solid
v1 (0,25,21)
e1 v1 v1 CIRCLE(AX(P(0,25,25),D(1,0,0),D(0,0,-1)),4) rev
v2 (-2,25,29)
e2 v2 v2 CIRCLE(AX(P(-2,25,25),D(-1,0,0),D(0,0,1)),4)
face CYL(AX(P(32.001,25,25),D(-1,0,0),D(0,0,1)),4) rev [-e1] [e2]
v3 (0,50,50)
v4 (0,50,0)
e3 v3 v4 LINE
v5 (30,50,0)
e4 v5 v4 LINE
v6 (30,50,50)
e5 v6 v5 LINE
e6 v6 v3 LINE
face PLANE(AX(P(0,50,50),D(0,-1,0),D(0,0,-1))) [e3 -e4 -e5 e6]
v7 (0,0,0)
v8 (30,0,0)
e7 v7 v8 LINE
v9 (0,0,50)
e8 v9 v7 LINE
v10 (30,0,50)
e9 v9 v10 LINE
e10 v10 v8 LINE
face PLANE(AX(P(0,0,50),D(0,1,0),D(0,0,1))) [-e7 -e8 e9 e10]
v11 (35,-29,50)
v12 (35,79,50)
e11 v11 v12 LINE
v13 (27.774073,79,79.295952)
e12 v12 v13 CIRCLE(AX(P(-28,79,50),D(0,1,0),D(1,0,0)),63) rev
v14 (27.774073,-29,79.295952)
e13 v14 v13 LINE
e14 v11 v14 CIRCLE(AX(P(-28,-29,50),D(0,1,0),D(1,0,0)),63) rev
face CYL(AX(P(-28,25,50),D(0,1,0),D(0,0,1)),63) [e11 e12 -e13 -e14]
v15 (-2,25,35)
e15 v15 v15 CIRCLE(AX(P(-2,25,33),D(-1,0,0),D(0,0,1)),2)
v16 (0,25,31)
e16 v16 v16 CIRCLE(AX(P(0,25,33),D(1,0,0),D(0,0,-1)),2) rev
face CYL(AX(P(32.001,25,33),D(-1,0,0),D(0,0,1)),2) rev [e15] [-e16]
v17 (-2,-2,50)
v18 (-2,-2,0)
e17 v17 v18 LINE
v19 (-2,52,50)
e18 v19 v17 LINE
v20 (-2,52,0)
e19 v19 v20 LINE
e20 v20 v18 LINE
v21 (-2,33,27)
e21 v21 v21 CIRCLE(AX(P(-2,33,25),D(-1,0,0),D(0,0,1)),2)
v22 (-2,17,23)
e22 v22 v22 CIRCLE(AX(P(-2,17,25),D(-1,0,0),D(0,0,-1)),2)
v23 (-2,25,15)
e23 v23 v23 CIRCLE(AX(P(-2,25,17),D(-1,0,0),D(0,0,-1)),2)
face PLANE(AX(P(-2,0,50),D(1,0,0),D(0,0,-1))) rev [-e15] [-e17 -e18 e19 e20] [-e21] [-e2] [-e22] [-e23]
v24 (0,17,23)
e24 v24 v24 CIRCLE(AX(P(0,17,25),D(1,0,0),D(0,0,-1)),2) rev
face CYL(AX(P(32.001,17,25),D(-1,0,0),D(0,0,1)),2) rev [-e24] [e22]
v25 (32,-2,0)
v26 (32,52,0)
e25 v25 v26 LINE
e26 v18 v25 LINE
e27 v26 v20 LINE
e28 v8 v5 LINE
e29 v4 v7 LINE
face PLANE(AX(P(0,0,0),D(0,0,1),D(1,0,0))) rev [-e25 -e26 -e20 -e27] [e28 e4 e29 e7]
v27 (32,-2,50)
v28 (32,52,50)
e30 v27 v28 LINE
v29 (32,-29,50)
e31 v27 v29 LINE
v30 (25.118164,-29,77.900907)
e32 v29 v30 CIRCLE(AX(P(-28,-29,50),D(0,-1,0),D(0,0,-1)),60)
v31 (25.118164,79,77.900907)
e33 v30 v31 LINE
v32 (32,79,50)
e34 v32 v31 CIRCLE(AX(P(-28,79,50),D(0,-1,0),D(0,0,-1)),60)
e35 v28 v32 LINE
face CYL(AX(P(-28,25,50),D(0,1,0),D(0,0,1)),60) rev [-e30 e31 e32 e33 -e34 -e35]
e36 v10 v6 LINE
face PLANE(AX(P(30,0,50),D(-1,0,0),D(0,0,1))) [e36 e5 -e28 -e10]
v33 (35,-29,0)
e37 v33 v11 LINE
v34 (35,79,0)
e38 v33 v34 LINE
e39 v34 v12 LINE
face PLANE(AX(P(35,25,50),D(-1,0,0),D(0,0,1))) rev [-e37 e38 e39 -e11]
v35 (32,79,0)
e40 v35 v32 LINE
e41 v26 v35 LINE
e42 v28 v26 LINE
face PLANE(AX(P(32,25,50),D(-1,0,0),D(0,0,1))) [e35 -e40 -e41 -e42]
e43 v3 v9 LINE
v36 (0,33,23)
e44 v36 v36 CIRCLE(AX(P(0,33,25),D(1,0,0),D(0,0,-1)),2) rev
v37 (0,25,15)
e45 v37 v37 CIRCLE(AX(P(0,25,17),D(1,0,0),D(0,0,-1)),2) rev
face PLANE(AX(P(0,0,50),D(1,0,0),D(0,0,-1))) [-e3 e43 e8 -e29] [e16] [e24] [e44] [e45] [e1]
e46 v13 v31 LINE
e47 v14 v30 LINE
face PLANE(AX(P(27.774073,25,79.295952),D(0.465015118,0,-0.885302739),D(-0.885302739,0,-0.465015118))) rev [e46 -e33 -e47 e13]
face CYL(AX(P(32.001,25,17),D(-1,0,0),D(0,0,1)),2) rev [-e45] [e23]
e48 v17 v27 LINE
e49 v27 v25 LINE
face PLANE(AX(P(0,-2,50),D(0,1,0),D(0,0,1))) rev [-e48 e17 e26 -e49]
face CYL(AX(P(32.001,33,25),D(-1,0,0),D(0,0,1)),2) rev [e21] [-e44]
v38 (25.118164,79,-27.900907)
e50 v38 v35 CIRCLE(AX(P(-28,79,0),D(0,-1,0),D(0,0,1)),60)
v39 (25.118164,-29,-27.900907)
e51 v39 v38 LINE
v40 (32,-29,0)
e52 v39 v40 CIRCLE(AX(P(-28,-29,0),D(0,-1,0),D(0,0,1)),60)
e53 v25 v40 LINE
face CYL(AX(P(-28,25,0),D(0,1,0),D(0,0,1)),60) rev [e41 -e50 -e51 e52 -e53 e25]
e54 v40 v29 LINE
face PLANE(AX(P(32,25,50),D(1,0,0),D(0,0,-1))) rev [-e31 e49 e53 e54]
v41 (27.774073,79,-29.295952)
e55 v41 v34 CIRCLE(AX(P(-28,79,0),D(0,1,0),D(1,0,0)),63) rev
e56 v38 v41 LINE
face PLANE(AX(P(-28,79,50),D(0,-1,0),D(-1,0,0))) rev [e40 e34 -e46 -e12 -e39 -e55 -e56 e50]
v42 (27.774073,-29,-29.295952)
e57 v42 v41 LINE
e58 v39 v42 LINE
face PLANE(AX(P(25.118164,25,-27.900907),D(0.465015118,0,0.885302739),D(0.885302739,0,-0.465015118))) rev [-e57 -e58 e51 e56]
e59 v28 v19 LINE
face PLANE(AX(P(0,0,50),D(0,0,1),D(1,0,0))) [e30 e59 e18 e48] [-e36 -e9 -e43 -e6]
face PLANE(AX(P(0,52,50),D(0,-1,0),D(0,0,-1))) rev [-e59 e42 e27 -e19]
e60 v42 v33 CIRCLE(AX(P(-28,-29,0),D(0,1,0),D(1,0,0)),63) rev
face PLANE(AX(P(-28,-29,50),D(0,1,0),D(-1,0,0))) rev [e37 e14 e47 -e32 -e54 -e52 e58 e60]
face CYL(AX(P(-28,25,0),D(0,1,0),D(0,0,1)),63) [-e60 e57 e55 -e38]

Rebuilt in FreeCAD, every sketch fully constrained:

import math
import FreeCAD as App
import Part
import Sketcher
from FreeCAD import Vector
Q = App.Units.Quantity

doc = App.newDocument("Part")
body = doc.addObject("PartDesign::Body", "Body")

# Sketch on XY plane
sketch1 = doc.addObject("Sketcher::SketchObject", "Sketch")
body.addObject(sketch1)
sketch1.AttachmentSupport = (doc.XY_Plane, [""])
sketch1.MapMode = "FlatFace"
sketch1.addGeometry([
    Part.LineSegment(Vector(-2, 52, 0), Vector(-2, -2, 0)),  # 0
    Part.LineSegment(Vector(-2, -2, 0), Vector(32, -2, 0)),  # 1
    Part.LineSegment(Vector(32, -2, 0), Vector(32, 52, 0)),  # 2
    Part.LineSegment(Vector(32, 52, 0), Vector(-2, 52, 0)),  # 3
    Part.LineSegment(Vector(30, 0, 0), Vector(0, 0, 0)),  # 4
    Part.LineSegment(Vector(0, 0, 0), Vector(0, 50, 0)),  # 5
    Part.LineSegment(Vector(0, 50, 0), Vector(30, 50, 0)),  # 6
    Part.LineSegment(Vector(30, 50, 0), Vector(30, 0, 0)),  # 7
], False)
sketch1.addConstraint([
    Sketcher.Constraint("Coincident", 0, 2, 1, 1),
    Sketcher.Constraint("Coincident", 1, 2, 2, 1),
    Sketcher.Constraint("Coincident", 2, 2, 3, 1),
    Sketcher.Constraint("Coincident", 3, 2, 0, 1),
    Sketcher.Constraint("Coincident", 4, 2, 5, 1),
    Sketcher.Constraint("Coincident", 5, 2, 6, 1),
    Sketcher.Constraint("Coincident", 6, 2, 7, 1),
    Sketcher.Constraint("Coincident", 7, 2, 4, 1),
    Sketcher.Constraint("Vertical", 0),
    Sketcher.Constraint("Horizontal", 1),
    Sketcher.Constraint("Vertical", 2),
    Sketcher.Constraint("Horizontal", 3),
    Sketcher.Constraint("Horizontal", 4),
    Sketcher.Constraint("Vertical", 5),
    Sketcher.Constraint("Horizontal", 6),
    Sketcher.Constraint("Vertical", 7),
    Sketcher.Constraint("Coincident", 4, 2, -1, 1),
    Sketcher.Constraint("DistanceX", 1, 1, 1, 2, Q("34 mm")),
    Sketcher.Constraint("DistanceX", 4, 2, 4, 1, Q("30 mm")),
    Sketcher.Constraint("DistanceY", 0, 2, 0, 1, Q("54 mm")),
    Sketcher.Constraint("DistanceY", 5, 1, 5, 2, Q("50 mm")),
    Sketcher.Constraint("DistanceX", 0, 2, -1, 1, Q("2 mm")),
    Sketcher.Constraint("DistanceY", 0, 2, -1, 1, Q("2 mm")),
])
pad1 = doc.addObject("PartDesign::Pad", "Pad")
body.addObject(pad1)
pad1.Profile = sketch1
pad1.Length = 50

# Sketch on YZ plane
sketch2 = doc.addObject("Sketcher::SketchObject", "Sketch001")
body.addObject(sketch2)
sketch2.AttachmentSupport = (doc.YZ_Plane, [""])
sketch2.MapMode = "FlatFace"
sketch2.AttachmentOffset = App.Placement(Vector(0, 0, -2), App.Rotation())
sketch2.addGeometry(Part.Circle(Vector(25, 25, 0), Vector(0, 0, 1), 4), False)
sketch2.addConstraint([
    Sketcher.Constraint("Diameter", 0, Q("8 mm")),
    Sketcher.Constraint("DistanceX", -1, 1, 0, 3, Q("25 mm")),
    Sketcher.Constraint("DistanceY", -1, 1, 0, 3, Q("25 mm")),
])
pocket1 = doc.addObject("PartDesign::Pocket", "Pocket")
body.addObject(pocket1)
pocket1.Profile = sketch2
pocket1.Type = "UpToFirst"
pocket1.Reversed = True

# Sketch on YZ plane
sketch3 = doc.addObject("Sketcher::SketchObject", "Sketch002")
body.addObject(sketch3)
sketch3.AttachmentSupport = (doc.YZ_Plane, [""])
sketch3.MapMode = "FlatFace"
sketch3.AttachmentOffset = App.Placement(Vector(0, 0, -2), App.Rotation())
sketch3.addGeometry(Part.Circle(Vector(25, 33, 0), Vector(0, 0, 1), 2), False)
sketch3.addConstraint([
    Sketcher.Constraint("Diameter", 0, Q("4 mm")),
    Sketcher.Constraint("DistanceX", -1, 1, 0, 3, Q("25 mm")),
    Sketcher.Constraint("DistanceY", -1, 1, 0, 3, Q("33 mm")),
])
pocket2 = doc.addObject("PartDesign::Pocket", "Pocket001")
body.addObject(pocket2)
pocket2.Profile = sketch3
pocket2.Type = "UpToFirst"
pocket2.Reversed = True

# Sketch on YZ plane
sketch4 = doc.addObject("Sketcher::SketchObject", "Sketch003")
body.addObject(sketch4)
sketch4.AttachmentSupport = (doc.YZ_Plane, [""])
sketch4.MapMode = "FlatFace"
sketch4.AttachmentOffset = App.Placement(Vector(0, 0, -2), App.Rotation())
sketch4.addGeometry(Part.Circle(Vector(25, 17, 0), Vector(0, 0, 1), 2), False)
sketch4.addConstraint([
    Sketcher.Constraint("Diameter", 0, Q("4 mm")),
    Sketcher.Constraint("DistanceX", -1, 1, 0, 3, Q("25 mm")),
    Sketcher.Constraint("DistanceY", -1, 1, 0, 3, Q("17 mm")),
])
pocket3 = doc.addObject("PartDesign::Pocket", "Pocket002")
body.addObject(pocket3)
pocket3.Profile = sketch4
pocket3.Type = "UpToFirst"
pocket3.Reversed = True

# Sketch on YZ plane
sketch5 = doc.addObject("Sketcher::SketchObject", "Sketch004")
body.addObject(sketch5)
sketch5.AttachmentSupport = (doc.YZ_Plane, [""])
sketch5.MapMode = "FlatFace"
sketch5.AttachmentOffset = App.Placement(Vector(0, 0, -2), App.Rotation())
sketch5.addGeometry(Part.Circle(Vector(33, 25, 0), Vector(0, 0, 1), 2), False)
sketch5.addConstraint([
    Sketcher.Constraint("Diameter", 0, Q("4 mm")),
    Sketcher.Constraint("DistanceX", -1, 1, 0, 3, Q("33 mm")),
    Sketcher.Constraint("DistanceY", -1, 1, 0, 3, Q("25 mm")),
])
pocket4 = doc.addObject("PartDesign::Pocket", "Pocket003")
body.addObject(pocket4)
pocket4.Profile = sketch5
pocket4.Type = "UpToFirst"
pocket4.Reversed = True

# Sketch on YZ plane
sketch6 = doc.addObject("Sketcher::SketchObject", "Sketch005")
body.addObject(sketch6)
sketch6.AttachmentSupport = (doc.YZ_Plane, [""])
sketch6.MapMode = "FlatFace"
sketch6.AttachmentOffset = App.Placement(Vector(0, 0, -2), App.Rotation())
sketch6.addGeometry(Part.Circle(Vector(17, 25, 0), Vector(0, 0, 1), 2), False)
sketch6.addConstraint([
    Sketcher.Constraint("Diameter", 0, Q("4 mm")),
    Sketcher.Constraint("DistanceX", -1, 1, 0, 3, Q("17 mm")),
    Sketcher.Constraint("DistanceY", -1, 1, 0, 3, Q("25 mm")),
])
pocket5 = doc.addObject("PartDesign::Pocket", "Pocket004")
body.addObject(pocket5)
pocket5.Profile = sketch6
pocket5.Type = "UpToFirst"
pocket5.Reversed = True

# Sketch on XZ plane
sketch7 = doc.addObject("Sketcher::SketchObject", "Sketch006")
body.addObject(sketch7)
sketch7.AttachmentSupport = (doc.XZ_Plane, [""])
sketch7.MapMode = "FlatFace"
sketch7.AttachmentOffset = App.Placement(Vector(0, 0, -52), App.Rotation())
sketch7.addGeometry([
    Part.ArcOfCircle(Part.Circle(Vector(-28, 50, 0), Vector(0, 0, 1), 60), math.radians(0), math.radians(28)),  # 0
    Part.LineSegment(Vector(25.1, 77.9, 0), Vector(27.8, 79.3, 0)),  # 1
    Part.ArcOfCircle(Part.Circle(Vector(-28, 50, 0), Vector(0, 0, 1), 63), math.radians(0), math.radians(28)),  # 2
    Part.LineSegment(Vector(35, 50, 0), Vector(35, 0, 0)),  # 3
    Part.ArcOfCircle(Part.Circle(Vector(-28, 0, 0), Vector(0, 0, 1), 63), math.radians(-28), math.radians(0)),  # 4
    Part.LineSegment(Vector(27.8, -29.3, 0), Vector(25.1, -27.9, 0)),  # 5
    Part.ArcOfCircle(Part.Circle(Vector(-28, 0, 0), Vector(0, 0, 1), 60), math.radians(-28), math.radians(0)),  # 6
    Part.LineSegment(Vector(32, 0, 0), Vector(32, 50, 0)),  # 7
], False)
sketch7.addConstraint([
    Sketcher.Constraint("Coincident", 0, 2, 1, 1),
    Sketcher.Constraint("Coincident", 1, 2, 2, 2),
    Sketcher.Constraint("Tangent", 2, 1, 3, 1),
    Sketcher.Constraint("Tangent", 3, 2, 4, 2),
    Sketcher.Constraint("Coincident", 4, 1, 5, 1),
    Sketcher.Constraint("Coincident", 5, 2, 6, 1),
    Sketcher.Constraint("Tangent", 6, 2, 7, 1),
    Sketcher.Constraint("Tangent", 7, 2, 0, 1),
    Sketcher.Constraint("Vertical", 3),
    Sketcher.Constraint("Vertical", 7),
    Sketcher.Constraint("Coincident", 2, 3, 0, 3),
    Sketcher.Constraint("Coincident", 6, 3, 4, 3),
    Sketcher.Constraint("Equal", 2, 4),
    Sketcher.Constraint("PointOnObject", 4, 3, -1),
    Sketcher.Constraint("Vertical", 1, 2, 4, 1),
    Sketcher.Constraint("Vertical", 0, 2, 5, 2),
    Sketcher.Constraint("Radius", 0, Q("60 mm")),
    Sketcher.Constraint("Radius", 2, Q("63 mm")),
    Sketcher.Constraint("DistanceY", 3, 2, 3, 1, Q("50 mm")),
    Sketcher.Constraint("DistanceX", 0, 3, -1, 1, Q("28 mm")),
    Sketcher.Constraint("DistanceX", 0, 2, 1, 2, Q("2.655908 mm")),
    Sketcher.Constraint("DistanceX", -1, 1, 0, 2, Q("25.118164 mm")),
])
pad2 = doc.addObject("PartDesign::Pad", "Pad001")
body.addObject(pad2)
pad2.Profile = sketch7
pad2.Length = 54
pad2.Midplane = True
doc.recompute()

datumplane = doc.addObject("PartDesign::Plane", "DatumPlane")
body.addObject(datumplane)
datumplane.AttachmentSupport = (doc.XZ_Plane, [""])
datumplane.MapMode = "FlatFace"
datumplane.AttachmentOffset = App.Placement(Vector(0, 0, -25), App.Rotation())
mirrored = doc.addObject("PartDesign::Mirrored", "Mirrored")
body.addObject(mirrored)
mirrored.Originals = [pad2]
mirrored.MirrorPlane = (datumplane, [""])
body.Tip = mirrored

doc.recompute()
